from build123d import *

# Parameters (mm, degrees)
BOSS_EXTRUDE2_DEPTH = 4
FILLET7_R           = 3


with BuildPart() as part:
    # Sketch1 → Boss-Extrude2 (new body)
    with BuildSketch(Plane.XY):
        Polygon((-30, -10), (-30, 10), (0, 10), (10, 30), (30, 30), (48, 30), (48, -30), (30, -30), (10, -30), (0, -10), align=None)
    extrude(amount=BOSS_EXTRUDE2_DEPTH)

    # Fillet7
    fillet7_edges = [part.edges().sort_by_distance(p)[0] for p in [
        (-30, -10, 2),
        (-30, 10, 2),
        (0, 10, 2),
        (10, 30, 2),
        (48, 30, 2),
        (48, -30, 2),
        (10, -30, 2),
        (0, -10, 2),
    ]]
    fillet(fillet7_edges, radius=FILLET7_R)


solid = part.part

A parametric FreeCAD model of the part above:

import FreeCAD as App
import Part
import Sketcher

V = App.Vector


def edges_at(feature, points):
    """Names of the edges that pass closest to the given points."""
    edges = feature.Shape.Edges
    near = lambda p: min(range(len(edges)), key=lambda i: edges[i].distToShape(Part.Vertex(*p))[0])
    return sorted({f"Edge{near(p) + 1}" for p in points})

doc = App.newDocument("Part")
body = doc.addObject("PartDesign::Body", "Body")

# Sketch on XY plane
sketch1 = body.newObject("Sketcher::SketchObject", "Sketch")
sketch1.AttachmentSupport = (doc.getObject("XY_Plane"), [""])
sketch1.MapMode = "FlatFace"
sketch1.addGeometry(Part.LineSegment(V(-30, 10, 0), V(-30, -10, 0)), False)
sketch1.addGeometry(Part.LineSegment(V(-30, -10, 0), V(0, -10, 0)), False)
sketch1.addGeometry(Part.LineSegment(V(0, -10, 0), V(10, -30, 0)), False)
sketch1.addGeometry(Part.LineSegment(V(10, -30, 0), V(48, -30, 0)), False)
sketch1.addGeometry(Part.LineSegment(V(48, -30, 0), V(48, 30, 0)), False)
sketch1.addGeometry(Part.LineSegment(V(48, 30, 0), V(10, 30, 0)), False)
sketch1.addGeometry(Part.LineSegment(V(10, 30, 0), V(0, 10, 0)), False)
sketch1.addGeometry(Part.LineSegment(V(0, 10, 0), V(-30, 10, 0)), False)
sketch1.addConstraint(Sketcher.Constraint("Coincident", 0, 2, 1, 1))
sketch1.addConstraint(Sketcher.Constraint("Coincident", 1, 2, 2, 1))
sketch1.addConstraint(Sketcher.Constraint("Coincident", 2, 2, 3, 1))
sketch1.addConstraint(Sketcher.Constraint("Coincident", 3, 2, 4, 1))
sketch1.addConstraint(Sketcher.Constraint("Coincident", 4, 2, 5, 1))
sketch1.addConstraint(Sketcher.Constraint("Coincident", 5, 2, 6, 1))
sketch1.addConstraint(Sketcher.Constraint("Coincident", 6, 2, 7, 1))
sketch1.addConstraint(Sketcher.Constraint("Coincident", 7, 2, 0, 1))
sketch1.addConstraint(Sketcher.Constraint("Vertical", 0))
sketch1.addConstraint(Sketcher.Constraint("Horizontal", 1))
sketch1.addConstraint(Sketcher.Constraint("Horizontal", 3))
sketch1.addConstraint(Sketcher.Constraint("Vertical", 4))
sketch1.addConstraint(Sketcher.Constraint("Horizontal", 5))
sketch1.addConstraint(Sketcher.Constraint("Horizontal", 7))
sketch1.addConstraint(Sketcher.Constraint("Symmetric", 1, 2, 6, 2, -1, 1))
sketch1.addConstraint(Sketcher.Constraint("Symmetric", 2, 2, 5, 2, -1))
sketch1.addConstraint(Sketcher.Constraint("PointOnObject", 1, 2, -2))
sketch1.addConstraint(Sketcher.Constraint("DistanceX", 1, 1, 1, 2, 30.0))
sketch1.addConstraint(Sketcher.Constraint("DistanceX", 3, 1, 3, 2, 38.0))
sketch1.addConstraint(Sketcher.Constraint("DistanceY", 0, 2, 0, 1, 20.0))
sketch1.addConstraint(Sketcher.Constraint("DistanceY", 4, 1, 4, 2, 60.0))
sketch1.addConstraint(Sketcher.Constraint("DistanceX", -1, 1, 2, 2, 10.0))
pad1 = body.newObject("PartDesign::Pad", "Pad")
pad1.Profile = sketch1
pad1.Length = 4
doc.recompute()

fillet = body.newObject("PartDesign::Fillet", "Fillet")
fillet.Base = (pad1, edges_at(pad1, [
    (-30, -10, 2),
    (-30, 10, 2),
    (0, 10, 2),
    (10, 30, 2),
    (48, 30, 2),
    (48, -30, 2),
    (10, -30, 2),
    (0, -10, 2),
]))
fillet.Radius = 3

doc.recompute()
